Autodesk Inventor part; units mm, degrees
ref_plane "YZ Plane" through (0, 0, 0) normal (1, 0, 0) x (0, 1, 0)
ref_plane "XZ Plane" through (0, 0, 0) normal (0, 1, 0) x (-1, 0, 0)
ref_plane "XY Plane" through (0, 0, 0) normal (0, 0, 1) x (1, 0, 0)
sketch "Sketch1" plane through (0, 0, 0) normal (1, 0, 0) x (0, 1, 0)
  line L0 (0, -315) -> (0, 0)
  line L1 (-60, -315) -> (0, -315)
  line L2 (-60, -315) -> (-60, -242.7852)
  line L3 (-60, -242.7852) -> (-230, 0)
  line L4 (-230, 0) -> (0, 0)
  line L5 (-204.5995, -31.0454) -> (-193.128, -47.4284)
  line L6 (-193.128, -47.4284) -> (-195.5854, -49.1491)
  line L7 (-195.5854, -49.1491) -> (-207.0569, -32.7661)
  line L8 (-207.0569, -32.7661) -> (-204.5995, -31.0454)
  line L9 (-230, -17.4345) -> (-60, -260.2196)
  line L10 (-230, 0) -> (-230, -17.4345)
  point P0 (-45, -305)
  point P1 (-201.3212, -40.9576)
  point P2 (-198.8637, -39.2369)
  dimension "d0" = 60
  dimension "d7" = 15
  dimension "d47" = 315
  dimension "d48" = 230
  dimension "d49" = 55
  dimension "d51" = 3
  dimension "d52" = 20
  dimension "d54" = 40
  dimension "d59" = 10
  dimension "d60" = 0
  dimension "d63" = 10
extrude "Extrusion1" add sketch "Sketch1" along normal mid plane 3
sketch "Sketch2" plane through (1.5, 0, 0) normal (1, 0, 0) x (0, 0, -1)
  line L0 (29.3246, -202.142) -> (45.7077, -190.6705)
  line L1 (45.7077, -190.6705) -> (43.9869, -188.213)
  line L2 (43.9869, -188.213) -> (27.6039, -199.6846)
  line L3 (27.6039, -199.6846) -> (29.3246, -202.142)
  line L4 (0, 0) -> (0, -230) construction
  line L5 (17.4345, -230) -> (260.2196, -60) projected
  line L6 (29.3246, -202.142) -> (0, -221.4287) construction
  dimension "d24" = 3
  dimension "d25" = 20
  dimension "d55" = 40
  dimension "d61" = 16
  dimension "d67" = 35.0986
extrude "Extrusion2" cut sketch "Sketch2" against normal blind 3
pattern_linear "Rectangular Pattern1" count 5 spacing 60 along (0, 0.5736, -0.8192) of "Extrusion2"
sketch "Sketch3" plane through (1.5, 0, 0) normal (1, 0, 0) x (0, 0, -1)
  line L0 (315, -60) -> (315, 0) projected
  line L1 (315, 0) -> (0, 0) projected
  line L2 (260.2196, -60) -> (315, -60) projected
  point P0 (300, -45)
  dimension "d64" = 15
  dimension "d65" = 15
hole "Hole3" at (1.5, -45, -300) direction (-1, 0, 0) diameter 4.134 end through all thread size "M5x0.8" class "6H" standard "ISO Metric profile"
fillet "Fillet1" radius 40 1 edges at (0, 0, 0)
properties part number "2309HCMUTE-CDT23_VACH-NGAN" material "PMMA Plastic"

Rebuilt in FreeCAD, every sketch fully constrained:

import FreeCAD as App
import Part
import Sketcher

V = App.Vector
Q = App.Units.Quantity


def edges_at(feature, points):
    """Names of the edges that pass closest to the given points."""
    edges = feature.Shape.Edges
    near = lambda p: min(range(len(edges)), key=lambda i: edges[i].distToShape(Part.Vertex(*p))[0])
    return sorted({f"Edge{near(p) + 1}" for p in points})

doc = App.newDocument("Part")
params = doc.addObject("Spreadsheet::Sheet", "Params")
for row, (alias, value) in enumerate([
    ("sketch1_width", "60 mm"),
    ("sketch1_width2", "230 mm"),
    ("sketch1_height", "315 mm"),
    ("pad1_length", "3 mm"),
    ("sketch2_length", "3 mm"),
    ("sketch2_length2", "20 mm"),
    ("pocket1_length", "3 mm"),
    ("linearpattern_pitch", "60 mm"),
    ("hole_diameter", "4.134 mm"),
    ("fillet_radius", "40 mm"),
], start=1):
    params.set(f"A{row}", alias)
    params.set(f"B{row}", "=" + value)
    params.setAlias(f"B{row}", alias)

body = doc.addObject("PartDesign::Body", "Body")

# Sketch on YZ plane
sketch1 = body.newObject("Sketcher::SketchObject", "Sketch")
sketch1.AttachmentSupport = (doc.getObject("YZ_Plane"), [""])
sketch1.MapMode = "FlatFace"
sketch1.addGeometry(Part.LineSegment(V(-60, -315, 0), V(0, -315, 0)), False)
sketch1.addGeometry(Part.LineSegment(V(0, -315, 0), V(0, 0, 0)), False)
sketch1.addGeometry(Part.LineSegment(V(0, 0, 0), V(-230, 0, 0)), False)
sketch1.addGeometry(Part.LineSegment(V(-230, 0, 0), V(-230, -17.4345, 0)), False)
sketch1.addGeometry(Part.LineSegment(V(-230, -17.4345, 0), V(-60, -260.2196, 0)), False)
sketch1.addGeometry(Part.LineSegment(V(-60, -260.2196, 0), V(-60, -315, 0)), False)
sketch1.addConstraint(Sketcher.Constraint("Coincident", 0, 2, 1, 1))
sketch1.addConstraint(Sketcher.Constraint("Coincident", 1, 2, 2, 1))
sketch1.addConstraint(Sketcher.Constraint("Coincident", 2, 2, 3, 1))
sketch1.addConstraint(Sketcher.Constraint("Coincident", 3, 2, 4, 1))
sketch1.addConstraint(Sketcher.Constraint("Coincident", 4, 2, 5, 1))
sketch1.addConstraint(Sketcher.Constraint("Coincident", 5, 2, 0, 1))
sketch1.addConstraint(Sketcher.Constraint("Horizontal", 0))
sketch1.addConstraint(Sketcher.Constraint("Vertical", 1))
sketch1.addConstraint(Sketcher.Constraint("Horizontal", 2))
sketch1.addConstraint(Sketcher.Constraint("Vertical", 3))
sketch1.addConstraint(Sketcher.Constraint("Vertical", 5))
sketch1.addConstraint(Sketcher.Constraint("Coincident", 1, 2, -1, 1))
sketch1.addConstraint(Sketcher.Constraint("DistanceX", 0, 1, 0, 2, Q("60 mm")))
sketch1.addConstraint(Sketcher.Constraint("DistanceX", 2, 2, 2, 1, Q("230 mm")))
sketch1.addConstraint(Sketcher.Constraint("DistanceY", 1, 1, 1, 2, Q("315 mm")))
sketch1.addConstraint(Sketcher.Constraint("Angle", 4, Q("-55 deg")))
sketch1.addConstraint(Sketcher.Constraint("DistanceY", 3, 2, 3, 1, Q("17.4345 mm")))
sketch1.setExpression("Constraints[12]", "Params.sketch1_width")
sketch1.setExpression("Constraints[13]", "Params.sketch1_width2")
sketch1.setExpression("Constraints[14]", "Params.sketch1_height")
pad1 = body.newObject("PartDesign::Pad", "Pad")
pad1.Profile = sketch1
pad1.setExpression("Length", "Params.pad1_length")
pad1.Midplane = True

# Sketch on YZ plane
sketch2 = body.newObject("Sketcher::SketchObject", "Sketch001")
sketch2.AttachmentSupport = (doc.getObject("YZ_Plane"), [""])
sketch2.MapMode = "FlatFace"
sketch2.AttachmentOffset = App.Placement(V(0, 0, 1.5), App.Rotation())
sketch2.addGeometry(Part.LineSegment(V(-199.6846, -27.6039, 0), V(-202.142, -29.3246, 0)), False)
sketch2.addGeometry(Part.LineSegment(V(-202.142, -29.3246, 0), V(-190.6705, -45.7077, 0)), False)
sketch2.addGeometry(Part.LineSegment(V(-190.6705, -45.7077, 0), V(-188.213, -43.9869, 0)), False)
sketch2.addGeometry(Part.LineSegment(V(-188.213, -43.9869, 0), V(-199.6846, -27.6039, 0)), False)
sketch2.addConstraint(Sketcher.Constraint("Coincident", 0, 2, 1, 1))
sketch2.addConstraint(Sketcher.Constraint("Coincident", 1, 2, 2, 1))
sketch2.addConstraint(Sketcher.Constraint("Coincident", 2, 2, 3, 1))
sketch2.addConstraint(Sketcher.Constraint("Coincident", 3, 2, 0, 1))
sketch2.addConstraint(Sketcher.Constraint("Perpendicular", 0, 1))
sketch2.addConstraint(Sketcher.Constraint("Perpendicular", 1, 2))
sketch2.addConstraint(Sketcher.Constraint("Perpendicular", 2, 3))
sketch2.addConstraint(Sketcher.Constraint("Distance", 0, Q("3 mm")))
sketch2.addConstraint(Sketcher.Constraint("Distance", 1, Q("20 mm")))
sketch2.addConstraint(Sketcher.Constraint("Angle", 0, Q("-144.9998 deg")))
sketch2.addConstraint(Sketcher.Constraint("DistanceX", 0, 2, -1, 1, Q("202.142 mm")))
sketch2.addConstraint(Sketcher.Constraint("DistanceY", 2, 2, -1, 1, Q("43.987 mm")))
sketch2.setExpression("Constraints[7]", "Params.sketch2_length")
sketch2.setExpression("Constraints[8]", "Params.sketch2_length2")
pocket1 = body.newObject("PartDesign::Pocket", "Pocket")
pocket1.Profile = sketch2
pocket1.setExpression("Length", "Params.pocket1_length")
doc.recompute()

datumline = body.newObject("PartDesign::Line", "DatumLine")
datumline.Placement = App.Placement(V(0, 0, 0), App.Rotation(V(0, 0, 1), V(0, 0.573576436, -0.819152044)))
linearpattern = body.newObject("PartDesign::LinearPattern", "LinearPattern")
linearpattern.Originals = [pocket1]
linearpattern.Direction = (datumline, [""])
linearpattern.Mode = "offset"
linearpattern.setExpression("Offset", "Params.linearpattern_pitch")
linearpattern.Occurrences = 5
body.Tip = linearpattern

# Sketch on YZ plane
sketch3 = body.newObject("Sketcher::SketchObject", "Sketch002")
sketch3.AttachmentSupport = (doc.getObject("YZ_Plane"), [""])
sketch3.MapMode = "FlatFace"
sketch3.AttachmentOffset = App.Placement(V(0, 0, 1.5), App.Rotation())
sketch3.addGeometry(Part.Circle(V(-45, -300, 0), V(0, 0, 1), 2.067), False)
sketch3.addConstraint(Sketcher.Constraint("Diameter", 0, Q("4.134 mm")))
sketch3.addConstraint(Sketcher.Constraint("DistanceX", 0, 3, -1, 1, Q("45 mm")))
sketch3.addConstraint(Sketcher.Constraint("DistanceY", 0, 3, -1, 1, Q("300 mm")))
doc.recompute()
hole = body.newObject("PartDesign::Hole", "Hole")
hole.Profile = sketch3
hole.ThreadType = "None"
hole.setExpression("Diameter", "Params.hole_diameter")
hole.DepthType = "ThroughAll"
doc.recompute()

fillet = body.newObject("PartDesign::Fillet", "Fillet")
fillet.Base = (hole, edges_at(hole, [(0, 0, 0)]))
fillet.setExpression("Radius", "Params.fillet_radius")

doc.recompute()
